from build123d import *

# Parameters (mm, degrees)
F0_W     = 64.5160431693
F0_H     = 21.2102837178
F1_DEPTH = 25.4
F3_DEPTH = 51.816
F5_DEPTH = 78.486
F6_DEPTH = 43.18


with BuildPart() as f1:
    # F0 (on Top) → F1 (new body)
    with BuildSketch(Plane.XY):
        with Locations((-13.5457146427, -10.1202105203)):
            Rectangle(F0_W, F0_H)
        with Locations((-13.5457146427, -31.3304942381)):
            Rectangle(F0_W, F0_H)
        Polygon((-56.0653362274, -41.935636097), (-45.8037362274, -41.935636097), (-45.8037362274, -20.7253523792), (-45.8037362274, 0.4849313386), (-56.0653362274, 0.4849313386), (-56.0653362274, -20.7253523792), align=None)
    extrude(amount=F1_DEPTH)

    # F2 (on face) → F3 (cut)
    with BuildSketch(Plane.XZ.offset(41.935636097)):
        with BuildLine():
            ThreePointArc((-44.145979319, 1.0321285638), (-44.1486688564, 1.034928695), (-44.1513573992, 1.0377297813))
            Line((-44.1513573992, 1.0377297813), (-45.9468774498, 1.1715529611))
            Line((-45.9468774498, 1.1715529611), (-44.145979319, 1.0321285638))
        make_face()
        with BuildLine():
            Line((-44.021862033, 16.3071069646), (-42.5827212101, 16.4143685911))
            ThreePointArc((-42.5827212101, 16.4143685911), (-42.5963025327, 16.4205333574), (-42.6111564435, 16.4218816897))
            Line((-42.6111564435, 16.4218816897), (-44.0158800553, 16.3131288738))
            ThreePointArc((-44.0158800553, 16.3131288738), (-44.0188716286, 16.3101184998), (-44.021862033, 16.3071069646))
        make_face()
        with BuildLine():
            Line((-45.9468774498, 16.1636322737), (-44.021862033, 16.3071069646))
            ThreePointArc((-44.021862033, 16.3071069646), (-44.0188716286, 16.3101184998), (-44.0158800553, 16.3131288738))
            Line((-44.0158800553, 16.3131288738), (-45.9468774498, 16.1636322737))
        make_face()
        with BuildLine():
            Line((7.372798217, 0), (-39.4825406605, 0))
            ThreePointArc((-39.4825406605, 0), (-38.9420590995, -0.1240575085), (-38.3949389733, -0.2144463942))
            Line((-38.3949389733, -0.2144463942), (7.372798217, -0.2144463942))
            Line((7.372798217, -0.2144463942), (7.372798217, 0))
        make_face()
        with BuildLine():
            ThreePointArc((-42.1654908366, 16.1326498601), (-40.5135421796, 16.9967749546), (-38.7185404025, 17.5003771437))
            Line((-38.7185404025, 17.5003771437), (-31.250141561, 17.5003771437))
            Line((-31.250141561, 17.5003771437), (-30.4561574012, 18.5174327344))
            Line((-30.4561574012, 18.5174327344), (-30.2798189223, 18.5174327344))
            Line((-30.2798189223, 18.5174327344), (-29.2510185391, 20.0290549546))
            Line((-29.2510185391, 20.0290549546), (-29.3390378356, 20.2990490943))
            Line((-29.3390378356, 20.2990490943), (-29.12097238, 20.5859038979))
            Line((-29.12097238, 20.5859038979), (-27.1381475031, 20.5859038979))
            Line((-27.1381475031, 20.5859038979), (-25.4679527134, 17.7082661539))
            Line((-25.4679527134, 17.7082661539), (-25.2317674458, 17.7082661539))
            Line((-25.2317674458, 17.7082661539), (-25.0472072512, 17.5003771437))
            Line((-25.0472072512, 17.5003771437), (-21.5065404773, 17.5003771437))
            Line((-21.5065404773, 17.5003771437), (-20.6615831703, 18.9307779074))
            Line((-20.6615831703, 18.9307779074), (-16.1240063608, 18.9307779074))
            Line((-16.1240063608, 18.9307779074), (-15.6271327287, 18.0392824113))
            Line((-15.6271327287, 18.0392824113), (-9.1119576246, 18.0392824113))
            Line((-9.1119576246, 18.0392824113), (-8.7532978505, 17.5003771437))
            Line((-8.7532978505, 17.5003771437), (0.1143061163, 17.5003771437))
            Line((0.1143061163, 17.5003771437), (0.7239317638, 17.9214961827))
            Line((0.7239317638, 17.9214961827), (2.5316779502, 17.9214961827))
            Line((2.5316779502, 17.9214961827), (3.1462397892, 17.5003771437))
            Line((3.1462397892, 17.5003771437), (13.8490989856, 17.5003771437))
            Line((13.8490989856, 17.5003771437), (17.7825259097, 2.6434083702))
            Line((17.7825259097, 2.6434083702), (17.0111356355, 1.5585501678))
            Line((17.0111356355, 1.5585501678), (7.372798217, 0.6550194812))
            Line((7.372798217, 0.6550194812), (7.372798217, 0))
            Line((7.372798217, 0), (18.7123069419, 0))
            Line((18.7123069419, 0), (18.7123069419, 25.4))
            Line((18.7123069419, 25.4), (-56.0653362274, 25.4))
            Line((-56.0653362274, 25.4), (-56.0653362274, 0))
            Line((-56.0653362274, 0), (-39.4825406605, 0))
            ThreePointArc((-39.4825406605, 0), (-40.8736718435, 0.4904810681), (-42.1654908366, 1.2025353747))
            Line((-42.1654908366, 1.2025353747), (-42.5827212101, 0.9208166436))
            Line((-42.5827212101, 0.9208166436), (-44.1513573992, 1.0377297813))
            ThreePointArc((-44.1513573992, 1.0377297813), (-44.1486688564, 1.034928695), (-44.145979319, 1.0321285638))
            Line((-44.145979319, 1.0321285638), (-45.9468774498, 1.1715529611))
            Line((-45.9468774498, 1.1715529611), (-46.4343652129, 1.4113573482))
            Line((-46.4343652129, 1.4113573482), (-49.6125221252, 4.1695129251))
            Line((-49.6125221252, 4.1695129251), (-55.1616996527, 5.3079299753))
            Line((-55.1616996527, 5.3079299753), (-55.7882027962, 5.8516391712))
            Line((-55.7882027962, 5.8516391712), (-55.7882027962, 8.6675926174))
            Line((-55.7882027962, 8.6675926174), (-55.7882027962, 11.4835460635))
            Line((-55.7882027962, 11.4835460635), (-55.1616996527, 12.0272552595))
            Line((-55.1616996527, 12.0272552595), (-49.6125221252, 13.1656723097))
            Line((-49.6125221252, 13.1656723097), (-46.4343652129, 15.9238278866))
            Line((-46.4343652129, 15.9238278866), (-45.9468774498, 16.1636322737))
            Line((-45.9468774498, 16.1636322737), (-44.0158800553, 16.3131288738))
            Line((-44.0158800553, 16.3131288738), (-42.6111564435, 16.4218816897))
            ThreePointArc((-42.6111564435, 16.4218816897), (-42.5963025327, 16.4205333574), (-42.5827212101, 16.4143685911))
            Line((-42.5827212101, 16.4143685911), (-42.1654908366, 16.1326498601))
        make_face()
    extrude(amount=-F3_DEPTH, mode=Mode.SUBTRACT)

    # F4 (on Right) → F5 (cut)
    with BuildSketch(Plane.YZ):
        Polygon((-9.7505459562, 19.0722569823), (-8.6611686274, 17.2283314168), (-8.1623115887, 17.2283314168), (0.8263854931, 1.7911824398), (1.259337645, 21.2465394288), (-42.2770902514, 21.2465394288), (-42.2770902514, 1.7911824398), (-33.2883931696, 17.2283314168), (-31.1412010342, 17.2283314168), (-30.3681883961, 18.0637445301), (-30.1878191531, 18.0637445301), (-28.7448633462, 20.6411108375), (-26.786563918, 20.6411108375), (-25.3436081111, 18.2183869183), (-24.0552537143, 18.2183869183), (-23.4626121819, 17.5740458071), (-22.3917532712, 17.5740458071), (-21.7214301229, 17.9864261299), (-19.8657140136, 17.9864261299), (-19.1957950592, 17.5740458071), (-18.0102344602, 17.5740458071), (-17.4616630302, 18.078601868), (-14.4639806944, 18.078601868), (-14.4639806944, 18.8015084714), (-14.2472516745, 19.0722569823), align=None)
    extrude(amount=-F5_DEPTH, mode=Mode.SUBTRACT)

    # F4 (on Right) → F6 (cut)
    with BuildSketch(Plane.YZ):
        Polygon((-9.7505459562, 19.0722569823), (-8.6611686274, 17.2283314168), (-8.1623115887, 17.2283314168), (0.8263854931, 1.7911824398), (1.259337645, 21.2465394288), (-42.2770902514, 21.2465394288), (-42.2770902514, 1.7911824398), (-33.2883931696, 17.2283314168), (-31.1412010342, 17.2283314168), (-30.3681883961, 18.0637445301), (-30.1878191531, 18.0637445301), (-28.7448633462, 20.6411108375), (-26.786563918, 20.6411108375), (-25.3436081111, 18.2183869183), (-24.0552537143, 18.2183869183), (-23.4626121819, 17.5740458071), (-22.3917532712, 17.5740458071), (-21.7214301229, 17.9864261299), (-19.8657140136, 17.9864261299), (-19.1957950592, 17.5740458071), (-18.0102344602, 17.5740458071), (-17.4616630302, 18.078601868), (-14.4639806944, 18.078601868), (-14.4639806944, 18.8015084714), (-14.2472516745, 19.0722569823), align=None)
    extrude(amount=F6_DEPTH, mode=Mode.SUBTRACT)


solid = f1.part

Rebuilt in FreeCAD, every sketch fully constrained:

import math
import FreeCAD as App
import Part
import Sketcher
from FreeCAD import Vector
Q = App.Units.Quantity


def add_polygon(sketch, points):
    """Adds a closed chain of lines whose ends are joined by coincident constraints."""
    first, n = sketch.GeometryCount, len(points)
    for a, b in zip(points, points[1:] + points[:1]):
        sketch.addGeometry(Part.LineSegment(App.Vector(*a, 0), App.Vector(*b, 0)), False)
    for i in range(n):
        sketch.addConstraint(Sketcher.Constraint("Coincident", first + i, 2, first + (i + 1) % n, 1))

doc = App.newDocument("Part")
body = doc.addObject("PartDesign::Body", "Body")

sketch1 = body.newObject("Sketcher::SketchObject", "Sketch")
sketch1.AttachmentSupport = (doc.getObject("XY_Plane"), [""])
sketch1.MapMode = "FlatFace"
add_polygon(sketch1, [(19, -42), (19, 0), (-56, 0), (-56, -42)])
sketch1.addConstraint(Sketcher.Constraint("Vertical", 0))
sketch1.addConstraint(Sketcher.Constraint("Horizontal", 1))
sketch1.addConstraint(Sketcher.Constraint("Vertical", 2))
sketch1.addConstraint(Sketcher.Constraint("Horizontal", 3))
sketch1.addConstraint(Sketcher.Constraint("DistanceX", 1, 2, 1, 1, 74.777643))
sketch1.addConstraint(Sketcher.Constraint("DistanceY", 0, 1, 0, 2, 42.420567))
sketch1.addConstraint(Sketcher.Constraint("DistanceY", -1, 1, 0, 2, 0.484931))
sketch1.addConstraint(Sketcher.Constraint("DistanceX", -1, 1, 0, 2, 18.712307))
pad1 = body.newObject("PartDesign::Pad", "Pad")
pad1.Profile = sketch1
pad1.Length = Q("1 in")

sketch2 = body.newObject("Sketcher::SketchObject", "Sketch001")
sketch2.AttachmentSupport = (doc.getObject("XZ_Plane"), [""])
sketch2.MapMode = "FlatFace"
sketch2.AttachmentOffset = App.Placement(Vector(0, 0, 41.935636), App.Rotation())
sketch2.addGeometry(Part.LineSegment(Vector(-44.15, 1.04, 0), Vector(-45.95, 1.17, 0)), False)
sketch2.addGeometry(Part.LineSegment(Vector(-45.95, 1.17, 0), Vector(-46.43, 1.41, 0)), False)
sketch2.addGeometry(Part.LineSegment(Vector(-46.43, 1.41, 0), Vector(-49.61, 4.17, 0)), False)
sketch2.addGeometry(Part.LineSegment(Vector(-49.61, 4.17, 0), Vector(-55.16, 5.31, 0)), False)
sketch2.addGeometry(Part.LineSegment(Vector(-55.16, 5.31, 0), Vector(-55.79, 5.85, 0)), False)
sketch2.addGeometry(Part.LineSegment(Vector(-55.79, 5.85, 0), Vector(-55.79, 11.48, 0)), False)
sketch2.addGeometry(Part.LineSegment(Vector(-55.79, 11.48, 0), Vector(-55.16, 12.03, 0)), False)
sketch2.addGeometry(Part.LineSegment(Vector(-55.16, 12.03, 0), Vector(-49.61, 13.17, 0)), False)
sketch2.addGeometry(Part.LineSegment(Vector(-49.61, 13.17, 0), Vector(-46.43, 15.92, 0)), False)
sketch2.addGeometry(Part.LineSegment(Vector(-46.43, 15.92, 0), Vector(-45.95, 16.16, 0)), False)
sketch2.addGeometry(Part.LineSegment(Vector(-45.95, 16.16, 0), Vector(-44.02, 16.31, 0)), False)
sketch2.addGeometry(Part.LineSegment(Vector(-44.02, 16.31, 0), Vector(-42.58, 16.41, 0)), False)
sketch2.addGeometry(Part.LineSegment(Vector(-42.58, 16.41, 0), Vector(-42.17, 16.13, 0)), False)
sketch2.addGeometry(Part.ArcOfCircle(Part.Circle(Vector(-37.21, 8.67, 0), Vector(0, 0, 1), 8.96), math.radians(100), math.radians(124)), False)
sketch2.addGeometry(Part.LineSegment(Vector(-38.72, 17.5, 0), Vector(-31.25, 17.5, 0)), False)
sketch2.addGeometry(Part.LineSegment(Vector(-31.25, 17.5, 0), Vector(-30.46, 18.52, 0)), False)
sketch2.addGeometry(Part.LineSegment(Vector(-30.46, 18.52, 0), Vector(-30.28, 18.52, 0)), False)
sketch2.addGeometry(Part.LineSegment(Vector(-30.28, 18.52, 0), Vector(-29.25, 20.03, 0)), False)
sketch2.addGeometry(Part.LineSegment(Vector(-29.25, 20.03, 0), Vector(-29.34, 20.3, 0)), False)
sketch2.addGeometry(Part.LineSegment(Vector(-29.34, 20.3, 0), Vector(-29.12, 20.59, 0)), False)
sketch2.addGeometry(Part.LineSegment(Vector(-29.12, 20.59, 0), Vector(-27.14, 20.59, 0)), False)
sketch2.addGeometry(Part.LineSegment(Vector(-27.14, 20.59, 0), Vector(-25.47, 17.71, 0)), False)
sketch2.addGeometry(Part.LineSegment(Vector(-25.47, 17.71, 0), Vector(-25.23, 17.71, 0)), False)
sketch2.addGeometry(Part.LineSegment(Vector(-25.23, 17.71, 0), Vector(-25.05, 17.5, 0)), False)
sketch2.addGeometry(Part.LineSegment(Vector(-25.05, 17.5, 0), Vector(-21.51, 17.5, 0)), False)
sketch2.addGeometry(Part.LineSegment(Vector(-21.51, 17.5, 0), Vector(-20.66, 18.93, 0)), False)
sketch2.addGeometry(Part.LineSegment(Vector(-20.66, 18.93, 0), Vector(-16.12, 18.93, 0)), False)
sketch2.addGeometry(Part.LineSegment(Vector(-16.12, 18.93, 0), Vector(-15.63, 18.04, 0)), False)
sketch2.addGeometry(Part.LineSegment(Vector(-15.63, 18.04, 0), Vector(-9.11, 18.04, 0)), False)
sketch2.addGeometry(Part.LineSegment(Vector(-9.11, 18.04, 0), Vector(-8.75, 17.5, 0)), False)
sketch2.addGeometry(Part.LineSegment(Vector(-8.75, 17.5, 0), Vector(0.11, 17.5, 0)), False)
sketch2.addGeometry(Part.LineSegment(Vector(0.11, 17.5, 0), Vector(0.72, 17.92, 0)), False)
sketch2.addGeometry(Part.LineSegment(Vector(0.72, 17.92, 0), Vector(2.53, 17.92, 0)), False)
sketch2.addGeometry(Part.LineSegment(Vector(2.53, 17.92, 0), Vector(3.15, 17.5, 0)), False)
sketch2.addGeometry(Part.LineSegment(Vector(3.15, 17.5, 0), Vector(13.85, 17.5, 0)), False)
sketch2.addGeometry(Part.LineSegment(Vector(13.85, 17.5, 0), Vector(17.78, 2.64, 0)), False)
sketch2.addGeometry(Part.LineSegment(Vector(17.78, 2.64, 0), Vector(17.01, 1.56, 0)), False)
sketch2.addGeometry(Part.LineSegment(Vector(17.01, 1.56, 0), Vector(7.37, 0.66, 0)), False)
sketch2.addGeometry(Part.LineSegment(Vector(7.37, 0.66, 0), Vector(7.37, 0, 0)), False)
sketch2.addGeometry(Part.LineSegment(Vector(7.37, 0, 0), Vector(18.71, 0, 0)), False)
sketch2.addGeometry(Part.LineSegment(Vector(18.71, 0, 0), Vector(18.71, 25.4, 0)), False)
sketch2.addGeometry(Part.LineSegment(Vector(18.71, 25.4, 0), Vector(-56.07, 25.4, 0)), False)
sketch2.addGeometry(Part.LineSegment(Vector(-56.07, 25.4, 0), Vector(-56.07, 0, 0)), False)
sketch2.addGeometry(Part.LineSegment(Vector(-56.07, 0, 0), Vector(-39.48, 0, 0)), False)
sketch2.addGeometry(Part.ArcOfCircle(Part.Circle(Vector(-37.21, 8.67, 0), Vector(0, 0, 1), 8.96), math.radians(-123.58), math.radians(-104.7)), False)
sketch2.addGeometry(Part.LineSegment(Vector(-42.17, 1.2, 0), Vector(-42.58, 0.92, 0)), False)
sketch2.addGeometry(Part.LineSegment(Vector(-42.58, 0.92, 0), Vector(-44.15, 1.04, 0)), False)
sketch2.addGeometry(Part.LineSegment(Vector(7.37, 0, 0), Vector(-39.48, 0, 0)), False)
sketch2.addGeometry(Part.ArcOfCircle(Part.Circle(Vector(-37.21, 8.67, 0), Vector(0, 0, 1), 8.96), math.radians(-104.7), math.radians(-97.61)), False)
sketch2.addGeometry(Part.LineSegment(Vector(-38.39, -0.21, 0), Vector(7.37, -0.21, 0)), False)
sketch2.addGeometry(Part.LineSegment(Vector(7.37, -0.21, 0), Vector(7.37, 0, 0)), False)
sketch2.addConstraint(Sketcher.Constraint("Coincident", 0, 2, 1, 1))
sketch2.addConstraint(Sketcher.Constraint("Coincident", 1, 2, 2, 1))
sketch2.addConstraint(Sketcher.Constraint("Coincident", 2, 2, 3, 1))
sketch2.addConstraint(Sketcher.Constraint("Coincident", 3, 2, 4, 1))
sketch2.addConstraint(Sketcher.Constraint("Coincident", 4, 2, 5, 1))
sketch2.addConstraint(Sketcher.Constraint("Coincident", 5, 2, 6, 1))
sketch2.addConstraint(Sketcher.Constraint("Coincident", 6, 2, 7, 1))
sketch2.addConstraint(Sketcher.Constraint("Coincident", 7, 2, 8, 1))
sketch2.addConstraint(Sketcher.Constraint("Coincident", 8, 2, 9, 1))
sketch2.addConstraint(Sketcher.Constraint("Coincident", 9, 2, 10, 1))
sketch2.addConstraint(Sketcher.Constraint("Coincident", 10, 2, 11, 1))
sketch2.addConstraint(Sketcher.Constraint("Coincident", 11, 2, 12, 1))
sketch2.addConstraint(Sketcher.Constraint("Coincident", 12, 2, 13, 2))
sketch2.addConstraint(Sketcher.Constraint("Coincident", 13, 1, 14, 1))
sketch2.addConstraint(Sketcher.Constraint("Coincident", 14, 2, 15, 1))
sketch2.addConstraint(Sketcher.Constraint("Coincident", 15, 2, 16, 1))
sketch2.addConstraint(Sketcher.Constraint("Coincident", 16, 2, 17, 1))
sketch2.addConstraint(Sketcher.Constraint("Coincident", 17, 2, 18, 1))
sketch2.addConstraint(Sketcher.Constraint("Coincident", 18, 2, 19, 1))
sketch2.addConstraint(Sketcher.Constraint("Coincident", 19, 2, 20, 1))
sketch2.addConstraint(Sketcher.Constraint("Coincident", 20, 2, 21, 1))
sketch2.addConstraint(Sketcher.Constraint("Coincident", 21, 2, 22, 1))
sketch2.addConstraint(Sketcher.Constraint("Coincident", 22, 2, 23, 1))
sketch2.addConstraint(Sketcher.Constraint("Coincident", 23, 2, 24, 1))
sketch2.addConstraint(Sketcher.Constraint("Coincident", 24, 2, 25, 1))
sketch2.addConstraint(Sketcher.Constraint("Coincident", 25, 2, 26, 1))
sketch2.addConstraint(Sketcher.Constraint("Coincident", 26, 2, 27, 1))
sketch2.addConstraint(Sketcher.Constraint("Coincident", 27, 2, 28, 1))
sketch2.addConstraint(Sketcher.Constraint("Coincident", 28, 2, 29, 1))
sketch2.addConstraint(Sketcher.Constraint("Coincident", 29, 2, 30, 1))
sketch2.addConstraint(Sketcher.Constraint("Coincident", 30, 2, 31, 1))
sketch2.addConstraint(Sketcher.Constraint("Coincident", 31, 2, 32, 1))
sketch2.addConstraint(Sketcher.Constraint("Coincident", 32, 2, 33, 1))
sketch2.addConstraint(Sketcher.Constraint("Coincident", 33, 2, 34, 1))
sketch2.addConstraint(Sketcher.Constraint("Coincident", 34, 2, 35, 1))
sketch2.addConstraint(Sketcher.Constraint("Coincident", 35, 2, 36, 1))
sketch2.addConstraint(Sketcher.Constraint("Coincident", 36, 2, 37, 1))
sketch2.addConstraint(Sketcher.Constraint("Coincident", 37, 2, 38, 1))
sketch2.addConstraint(Sketcher.Constraint("Coincident", 38, 2, 39, 1))
sketch2.addConstraint(Sketcher.Constraint("Coincident", 39, 2, 40, 1))
sketch2.addConstraint(Sketcher.Constraint("Coincident", 40, 2, 41, 1))
sketch2.addConstraint(Sketcher.Constraint("Coincident", 41, 2, 42, 1))
sketch2.addConstraint(Sketcher.Constraint("Coincident", 42, 2, 43, 1))
sketch2.addConstraint(Sketcher.Constraint("Coincident", 43, 2, 44, 2))
sketch2.addConstraint(Sketcher.Constraint("Coincident", 44, 1, 45, 1))
sketch2.addConstraint(Sketcher.Constraint("Coincident", 45, 2, 46, 1))
sketch2.addConstraint(Sketcher.Constraint("Coincident", 46, 2, 0, 1))
sketch2.addConstraint(Sketcher.Constraint("Coincident", 47, 2, 48, 1))
sketch2.addConstraint(Sketcher.Constraint("Coincident", 48, 2, 49, 1))
sketch2.addConstraint(Sketcher.Constraint("Coincident", 49, 2, 50, 1))
sketch2.addConstraint(Sketcher.Constraint("Coincident", 50, 2, 47, 1))
sketch2.addConstraint(Sketcher.Constraint("Vertical", 5))
sketch2.addConstraint(Sketcher.Constraint("Horizontal", 14))
sketch2.addConstraint(Sketcher.Constraint("Horizontal", 16))
sketch2.addConstraint(Sketcher.Constraint("Horizontal", 20))
sketch2.addConstraint(Sketcher.Constraint("Horizontal", 22))
sketch2.addConstraint(Sketcher.Constraint("Horizontal", 24))
sketch2.addConstraint(Sketcher.Constraint("Horizontal", 26))
sketch2.addConstraint(Sketcher.Constraint("Horizontal", 28))
sketch2.addConstraint(Sketcher.Constraint("Horizontal", 30))
sketch2.addConstraint(Sketcher.Constraint("Horizontal", 32))
sketch2.addConstraint(Sketcher.Constraint("Horizontal", 34))
sketch2.addConstraint(Sketcher.Constraint("Vertical", 38))
sketch2.addConstraint(Sketcher.Constraint("Horizontal", 39))
sketch2.addConstraint(Sketcher.Constraint("Vertical", 40))
sketch2.addConstraint(Sketcher.Constraint("Horizontal", 41))
sketch2.addConstraint(Sketcher.Constraint("Vertical", 42))
sketch2.addConstraint(Sketcher.Constraint("Horizontal", 43))
sketch2.addConstraint(Sketcher.Constraint("Horizontal", 47))
sketch2.addConstraint(Sketcher.Constraint("Horizontal", 49))
sketch2.addConstraint(Sketcher.Constraint("Vertical", 50))
sketch2.addConstraint(Sketcher.Constraint("Coincident", 44, 3, 13, 3))
sketch2.addConstraint(Sketcher.Constraint("Coincident", 48, 3, 13, 3))
sketch2.addConstraint(Sketcher.Constraint("Coincident", 47, 2, 43, 2))
sketch2.addConstraint(Sketcher.Constraint("Coincident", 50, 2, 38, 2))
sketch2.addConstraint(Sketcher.Constraint("Equal", 13, 44))
sketch2.addConstraint(Sketcher.Constraint("PointOnObject", 38, 2, -1))
sketch2.addConstraint(Sketcher.Constraint("Parallel", 2, 4))
sketch2.addConstraint(Sketcher.Constraint("Parallel", 6, 8))
sketch2.addConstraint(Sketcher.Constraint("Parallel", 10, 11))
sketch2.addConstraint(Sketcher.Constraint("Parallel", 0, 46))
sketch2.addConstraint(Sketcher.Constraint("Horizontal", 14, 2, 23, 2))
sketch2.addConstraint(Sketcher.Constraint("Horizontal", 24, 2, 29, 2))
sketch2.addConstraint(Sketcher.Constraint("Horizontal", 30, 2, 33, 2))
sketch2.addConstraint(Sketcher.Constraint("Vertical", 3, 2, 6, 2))
sketch2.addConstraint(Sketcher.Constraint("Vertical", 2, 2, 7, 2))
sketch2.addConstraint(Sketcher.Constraint("Vertical", 1, 2, 8, 2))
sketch2.addConstraint(Sketcher.Constraint("Vertical", 0, 2, 9, 2))
sketch2.addConstraint(Sketcher.Constraint("Vertical", 12, 2, 44, 1))
sketch2.addConstraint(Sketcher.Constraint("Vertical", 11, 2, 45, 2))
sketch2.addConstraint(Sketcher.Constraint("Equal", 4, 6))
sketch2.addConstraint(Sketcher.Constraint("Equal", 3, 7))
sketch2.addConstraint(Sketcher.Constraint("Equal", 1, 9))
sketch2.addConstraint(Sketcher.Constraint("Equal", 12, 45))
sketch2.addConstraint(Sketcher.Constraint("DistanceY", 40, 1, 40, 2, Q("1 in")))
sketch2.addConstraint(Sketcher.Constraint("Radius", 13, 8.960919))
sketch2.addConstraint(Sketcher.Constraint("DistanceX", 14, 1, 14, 2, 7.468399))
sketch2.addConstraint(Sketcher.Constraint("DistanceX", 33, 2, 37, 2, Q("0.1663999 in")))
sketch2.addConstraint(Sketcher.Constraint("DistanceY", 44, 1, 48, 3, Q("0.2938999 in")))
sketch2.addConstraint(Sketcher.Constraint("Distance", 0, 1.8005))
sketch2.addConstraint(Sketcher.Constraint("Distance", 2, 4.2081))
sketch2.addConstraint(Sketcher.Constraint("Distance", 33, 0.745002))
sketch2.addConstraint(Sketcher.Constraint("DistanceX", 16, 1, 16, 2, 0.176338))
sketch2.addConstraint(Sketcher.Constraint("DistanceX", 34, 1, 34, 2, 10.702859))
sketch2.addConstraint(Sketcher.Constraint("DistanceX", 39, 1, 39, 2, 11.339509))
sketch2.addConstraint(Sketcher.Constraint("DistanceX", 47, 2, 47, 1, 46.855339))
sketch2.addConstraint(Sketcher.Constraint("DistanceY", 38, 2, 38, 1, 0.655019))
sketch2.addConstraint(Sketcher.Constraint("DistanceX", 3, 2, -1, 1, 55.1617))
sketch2.addConstraint(Sketcher.Constraint("DistanceX", -1, 1, 34, 2, 13.849099))
sketch2.addConstraint(Sketcher.Constraint("DistanceX", 0, 2, 48, 3, 8.7383))
sketch2.addConstraint(Sketcher.Constraint("DistanceX", 7, 2, 11, 2, 7.029801))
sketch2.addConstraint(Sketcher.Constraint("DistanceX", 16, 2, 17, 2, 1.0288))
sketch2.addConstraint(Sketcher.Constraint("DistanceY", 24, 2, 25, 2, 1.430401))
sketch2.addConstraint(Sketcher.Constraint("DistanceX", 23, 2, 26, 2, 8.923201))
sketch2.addConstraint(Sketcher.Constraint("DistanceX", 30, 2, 40, 2, 18.598001))
sketch2.addConstraint(Sketcher.Constraint("DistanceX", 43, 2, 48, 2, 1.087602))
sketch2.addConstraint(Sketcher.Constraint("Distance", 18, 0.283979))
sketch2.addConstraint(Sketcher.Constraint("Distance", 19, 0.360331))
sketch2.addConstraint(Sketcher.Constraint("Distance", 27, 1.020611))
sketch2.addConstraint(Sketcher.Constraint("Distance", 36, 1.33115))
sketch2.addConstraint(Sketcher.Constraint("DistanceX", 20, 1, 20, 2, 1.982825))
sketch2.addConstraint(Sketcher.Constraint("DistanceX", 22, 1, 22, 2, 0.236185))
sketch2.addConstraint(Sketcher.Constraint("DistanceX", 24, 1, 24, 2, 3.540667))
sketch2.addConstraint(Sketcher.Constraint("DistanceX", 26, 1, 26, 2, 4.537577))
sketch2.addConstraint(Sketcher.Constraint("DistanceX", 28, 1, 28, 2, 6.515175))
sketch2.addConstraint(Sketcher.Constraint("DistanceX", 30, 1, 30, 2, 8.867604))
sketch2.addConstraint(Sketcher.Constraint("DistanceX", 32, 1, 32, 2, 1.807746))
sketch2.addConstraint(Sketcher.Constraint("DistanceX", 41, 2, 41, 1, 74.777643))
sketch2.addConstraint(Sketcher.Constraint("DistanceY", 5, 1, 5, 2, 5.631907))
sketch2.addConstraint(Sketcher.Constraint("DistanceY", 50, 1, 50, 2, 0.214446))
sketch2.addConstraint(Sketcher.Constraint("DistanceY", -1, 1, 3, 2, 5.30793))
sketch2.addConstraint(Sketcher.Constraint("DistanceY", -1, 1, 4, 2, 5.851639))
sketch2.addConstraint(Sketcher.Constraint("DistanceX", 11, 2, -1, 1, 42.582721))
sketch2.addConstraint(Sketcher.Constraint("DistanceY", -1, 1, 11, 2, 16.414369))
sketch2.addConstraint(Sketcher.Constraint("DistanceX", 13, 1, -1, 1, 38.71854))
sketch2.addConstraint(Sketcher.Constraint("DistanceX", 16, 2, -1, 1, 30.279819))
sketch2.addConstraint(Sketcher.Constraint("DistanceY", -1, 1, 18, 2, 20.299049))
sketch2.addConstraint(Sketcher.Constraint("DistanceX", 24, 2, -1, 1, 21.50654))
sketch2.addConstraint(Sketcher.Constraint("DistanceX", -1, 1, 31, 2, 0.723932))
sketch2.addConstraint(Sketcher.Constraint("DistanceY", -1, 1, 35, 2, 2.643408))
sketch2.addConstraint(Sketcher.Constraint("DistanceY", -1, 1, 36, 2, 1.55855))
sketch2.addConstraint(Sketcher.Constraint("DistanceY", -1, 1, 46, 2, 1.03773))
sketch2.addConstraint(Sketcher.Constraint("DistanceY", 0, 2, 2, 2, 2.99796))
sketch2.addConstraint(Sketcher.Constraint("DistanceX", 4, 2, 2, 2, 6.175681))
sketch2.addConstraint(Sketcher.Constraint("DistanceY", 8, 2, 10, 2, 0.383279))
sketch2.addConstraint(Sketcher.Constraint("DistanceY", 13, 3, 15, 2, 9.84984))
sketch2.addConstraint(Sketcher.Constraint("DistanceX", 18, 2, 17, 2, 0.088019))
sketch2.addConstraint(Sketcher.Constraint("DistanceY", 17, 2, 19, 2, 0.556849))
sketch2.addConstraint(Sketcher.Constraint("DistanceY", 21, 2, 17, 2, 2.320789))
sketch2.addConstraint(Sketcher.Constraint("DistanceX", 19, 2, 21, 2, 3.65302))
sketch2.addConstraint(Sketcher.Constraint("DistanceX", 25, 2, 27, 2, 5.03445))
sketch2.addConstraint(Sketcher.Constraint("DistanceX", 30, 2, 35, 2, 17.66822))
pocket1 = body.newObject("PartDesign::Pocket", "Pocket")
pocket1.Profile = sketch2
pocket1.Length = Q("2.04 in")

sketch3 = body.newObject("Sketcher::SketchObject", "Sketch002")
sketch3.AttachmentSupport = (doc.getObject("YZ_Plane"), [""])
sketch3.MapMode = "FlatFace"
add_polygon(sketch3, [(-9.75, 19.07), (-8.66, 17.23), (-8.16, 17.23), (0.83, 1.79), (1.26, 21.25), (-42.28, 21.25), (-42.28, 1.79), (-33.29, 17.23), (-31.14, 17.23), (-30.37, 18.06), (-30.19, 18.06), (-28.74, 20.64), (-26.79, 20.64), (-25.34, 18.22), (-24.06, 18.22), (-23.46, 17.57), (-22.39, 17.57), (-21.72, 17.99), (-19.87, 17.99), (-19.2, 17.57), (-18.01, 17.57), (-17.46, 18.08), (-14.46, 18.08), (-14.46, 18.8), (-14.25, 19.07)])
sketch3.addConstraint(Sketcher.Constraint("Horizontal", 1))
sketch3.addConstraint(Sketcher.Constraint("Horizontal", 4))
sketch3.addConstraint(Sketcher.Constraint("Vertical", 5))
sketch3.addConstraint(Sketcher.Constraint("Horizontal", 7))
sketch3.addConstraint(Sketcher.Constraint("Horizontal", 9))
sketch3.addConstraint(Sketcher.Constraint("Horizontal", 11))
sketch3.addConstraint(Sketcher.Constraint("Horizontal", 13))
sketch3.addConstraint(Sketcher.Constraint("Horizontal", 15))
sketch3.addConstraint(Sketcher.Constraint("Horizontal", 17))
sketch3.addConstraint(Sketcher.Constraint("Horizontal", 19))
sketch3.addConstraint(Sketcher.Constraint("Horizontal", 21))
sketch3.addConstraint(Sketcher.Constraint("Vertical", 22))
sketch3.addConstraint(Sketcher.Constraint("Horizontal", 24))
sketch3.addConstraint(Sketcher.Constraint("Perpendicular", 14, 20))
sketch3.addConstraint(Sketcher.Constraint("Horizontal", 2, 2, 5, 2))
sketch3.addConstraint(Sketcher.Constraint("Horizontal", 1, 2, 6, 2))
sketch3.addConstraint(Sketcher.Constraint("Horizontal", 15, 2, 18, 2))
sketch3.addConstraint(Sketcher.Constraint("Equal", 2, 6))
sketch3.addConstraint(Sketcher.Constraint("DistanceX", 11, 1, 11, 2, 1.958299))
sketch3.addConstraint(Sketcher.Constraint("Distance", 10, 2.953801))
sketch3.addConstraint(Sketcher.Constraint("DistanceX", 9, 1, 9, 2, 0.180369))
sketch3.addConstraint(Sketcher.Constraint("DistanceX", 15, 1, 15, 2, 1.070859))
sketch3.addConstraint(Sketcher.Constraint("DistanceX", 19, 1, 19, 2, 1.185561))
sketch3.addConstraint(Sketcher.Constraint("DistanceX", 7, 2, -1, 1, 31.141201))
sketch3.addConstraint(Sketcher.Constraint("DistanceY", -1, 1, 20, 2, 18.078602))
sketch3.addConstraint(Sketcher.Constraint("DistanceX", 4, 2, 8, 2, 11.908902))
sketch3.addConstraint(Sketcher.Constraint("DistanceY", 14, 2, 9, 2, 0.489699))
sketch3.addConstraint(Sketcher.Constraint("DistanceX", 13, 2, 15, 2, 1.6635))
sketch3.addConstraint(Sketcher.Constraint("DistanceX", 14, 2, 17, 2, 3.596898))
sketch3.addConstraint(Sketcher.Constraint("Distance", 12, 2.819878))
sketch3.addConstraint(Sketcher.Constraint("Distance", 18, 0.78667))
sketch3.addConstraint(Sketcher.Constraint("Distance", 23, 0.346809))
sketch3.addConstraint(Sketcher.Constraint("DistanceX", 1, 1, 1, 2, 0.498857))
sketch3.addConstraint(Sketcher.Constraint("DistanceX", 4, 2, 4, 1, 43.536428))
sketch3.addConstraint(Sketcher.Constraint("DistanceX", 7, 1, 7, 2, 2.147192))
sketch3.addConstraint(Sketcher.Constraint("DistanceX", 13, 1, 13, 2, 1.288354))
sketch3.addConstraint(Sketcher.Constraint("DistanceX", 17, 1, 17, 2, 1.855716))
sketch3.addConstraint(Sketcher.Constraint("DistanceX", 21, 1, 21, 2, 2.997682))
sketch3.addConstraint(Sketcher.Constraint("DistanceX", 24, 1, 24, 2, 4.496706))
sketch3.addConstraint(Sketcher.Constraint("DistanceY", 5, 2, 5, 1, 19.455357))
sketch3.addConstraint(Sketcher.Constraint("DistanceY", 22, 1, 22, 2, 0.722907))
sketch3.addConstraint(Sketcher.Constraint("DistanceX", 0, 2, -1, 1, 8.661169))
sketch3.addConstraint(Sketcher.Constraint("DistanceY", -1, 1, 0, 2, 17.228331))
sketch3.addConstraint(Sketcher.Constraint("DistanceY", -1, 1, 3, 2, 21.246539))
sketch3.addConstraint(Sketcher.Constraint("DistanceX", 4, 2, -1, 1, 42.27709))
sketch3.addConstraint(Sketcher.Constraint("DistanceY", -1, 1, 10, 2, 20.641111))
sketch3.addConstraint(Sketcher.Constraint("DistanceX", 12, 2, -1, 1, 25.343608))
sketch3.addConstraint(Sketcher.Constraint("DistanceX", 21, 2, -1, 1, 14.463981))
sketch3.addConstraint(Sketcher.Constraint("DistanceX", 23, 2, -1, 1, 14.247252))
sketch3.addConstraint(Sketcher.Constraint("DistanceX", 6, 2, 10, 2, 4.54353))
pocket2 = body.newObject("PartDesign::Pocket", "Pocket001")
pocket2.Profile = sketch3
pocket2.Length = Q("3.09 in")

sketch4 = body.newObject("Sketcher::SketchObject", "Sketch003")
sketch4.AttachmentSupport = (doc.getObject("YZ_Plane"), [""])
sketch4.MapMode = "FlatFace"
add_polygon(sketch4, [(-9.75, 19.07), (-8.66, 17.23), (-8.16, 17.23), (0.83, 1.79), (1.26, 21.25), (-42.28, 21.25), (-42.28, 1.79), (-33.29, 17.23), (-31.14, 17.23), (-30.37, 18.06), (-30.19, 18.06), (-28.74, 20.64), (-26.79, 20.64), (-25.34, 18.22), (-24.06, 18.22), (-23.46, 17.57), (-22.39, 17.57), (-21.72, 17.99), (-19.87, 17.99), (-19.2, 17.57), (-18.01, 17.57), (-17.46, 18.08), (-14.46, 18.08), (-14.46, 18.8), (-14.25, 19.07)])
sketch4.addConstraint(Sketcher.Constraint("Horizontal", 1))
sketch4.addConstraint(Sketcher.Constraint("Horizontal", 4))
sketch4.addConstraint(Sketcher.Constraint("Vertical", 5))
sketch4.addConstraint(Sketcher.Constraint("Horizontal", 7))
sketch4.addConstraint(Sketcher.Constraint("Horizontal", 9))
sketch4.addConstraint(Sketcher.Constraint("Horizontal", 11))
sketch4.addConstraint(Sketcher.Constraint("Horizontal", 13))
sketch4.addConstraint(Sketcher.Constraint("Horizontal", 15))
sketch4.addConstraint(Sketcher.Constraint("Horizontal", 17))
sketch4.addConstraint(Sketcher.Constraint("Horizontal", 19))
sketch4.addConstraint(Sketcher.Constraint("Horizontal", 21))
sketch4.addConstraint(Sketcher.Constraint("Vertical", 22))
sketch4.addConstraint(Sketcher.Constraint("Horizontal", 24))
sketch4.addConstraint(Sketcher.Constraint("Perpendicular", 14, 20))
sketch4.addConstraint(Sketcher.Constraint("Horizontal", 2, 2, 5, 2))
sketch4.addConstraint(Sketcher.Constraint("Horizontal", 1, 2, 6, 2))
sketch4.addConstraint(Sketcher.Constraint("Horizontal", 15, 2, 18, 2))
sketch4.addConstraint(Sketcher.Constraint("Equal", 2, 6))
sketch4.addConstraint(Sketcher.Constraint("DistanceX", 11, 1, 11, 2, 1.958299))
sketch4.addConstraint(Sketcher.Constraint("Distance", 10, 2.953801))
sketch4.addConstraint(Sketcher.Constraint("DistanceX", 9, 1, 9, 2, 0.180369))
sketch4.addConstraint(Sketcher.Constraint("DistanceX", 15, 1, 15, 2, 1.070859))
sketch4.addConstraint(Sketcher.Constraint("DistanceX", 19, 1, 19, 2, 1.185561))
sketch4.addConstraint(Sketcher.Constraint("DistanceX", 7, 2, -1, 1, 31.141201))
sketch4.addConstraint(Sketcher.Constraint("DistanceY", -1, 1, 20, 2, 18.078602))
sketch4.addConstraint(Sketcher.Constraint("DistanceX", 4, 2, 8, 2, 11.908902))
sketch4.addConstraint(Sketcher.Constraint("DistanceY", 14, 2, 9, 2, 0.489699))
sketch4.addConstraint(Sketcher.Constraint("DistanceX", 13, 2, 15, 2, 1.6635))
sketch4.addConstraint(Sketcher.Constraint("DistanceX", 14, 2, 17, 2, 3.596898))
sketch4.addConstraint(Sketcher.Constraint("Distance", 12, 2.819878))
sketch4.addConstraint(Sketcher.Constraint("Distance", 18, 0.78667))
sketch4.addConstraint(Sketcher.Constraint("Distance", 23, 0.346809))
sketch4.addConstraint(Sketcher.Constraint("DistanceX", 1, 1, 1, 2, 0.498857))
sketch4.addConstraint(Sketcher.Constraint("DistanceX", 4, 2, 4, 1, 43.536428))
sketch4.addConstraint(Sketcher.Constraint("DistanceX", 7, 1, 7, 2, 2.147192))
sketch4.addConstraint(Sketcher.Constraint("DistanceX", 13, 1, 13, 2, 1.288354))
sketch4.addConstraint(Sketcher.Constraint("DistanceX", 17, 1, 17, 2, 1.855716))
sketch4.addConstraint(Sketcher.Constraint("DistanceX", 21, 1, 21, 2, 2.997682))
sketch4.addConstraint(Sketcher.Constraint("DistanceX", 24, 1, 24, 2, 4.496706))
sketch4.addConstraint(Sketcher.Constraint("DistanceY", 5, 2, 5, 1, 19.455357))
sketch4.addConstraint(Sketcher.Constraint("DistanceY", 22, 1, 22, 2, 0.722907))
sketch4.addConstraint(Sketcher.Constraint("DistanceX", 0, 2, -1, 1, 8.661169))
sketch4.addConstraint(Sketcher.Constraint("DistanceY", -1, 1, 0, 2, 17.228331))
sketch4.addConstraint(Sketcher.Constraint("DistanceY", -1, 1, 3, 2, 21.246539))
sketch4.addConstraint(Sketcher.Constraint("DistanceX", 4, 2, -1, 1, 42.27709))
sketch4.addConstraint(Sketcher.Constraint("DistanceY", -1, 1, 10, 2, 20.641111))
sketch4.addConstraint(Sketcher.Constraint("DistanceX", 12, 2, -1, 1, 25.343608))
sketch4.addConstraint(Sketcher.Constraint("DistanceX", 21, 2, -1, 1, 14.463981))
sketch4.addConstraint(Sketcher.Constraint("DistanceX", 23, 2, -1, 1, 14.247252))
sketch4.addConstraint(Sketcher.Constraint("DistanceX", 6, 2, 10, 2, 4.54353))
pocket3 = body.newObject("PartDesign::Pocket", "Pocket002")
pocket3.Profile = sketch4
pocket3.Length = Q("1.7 in")
pocket3.Reversed = True

doc.recompute()
